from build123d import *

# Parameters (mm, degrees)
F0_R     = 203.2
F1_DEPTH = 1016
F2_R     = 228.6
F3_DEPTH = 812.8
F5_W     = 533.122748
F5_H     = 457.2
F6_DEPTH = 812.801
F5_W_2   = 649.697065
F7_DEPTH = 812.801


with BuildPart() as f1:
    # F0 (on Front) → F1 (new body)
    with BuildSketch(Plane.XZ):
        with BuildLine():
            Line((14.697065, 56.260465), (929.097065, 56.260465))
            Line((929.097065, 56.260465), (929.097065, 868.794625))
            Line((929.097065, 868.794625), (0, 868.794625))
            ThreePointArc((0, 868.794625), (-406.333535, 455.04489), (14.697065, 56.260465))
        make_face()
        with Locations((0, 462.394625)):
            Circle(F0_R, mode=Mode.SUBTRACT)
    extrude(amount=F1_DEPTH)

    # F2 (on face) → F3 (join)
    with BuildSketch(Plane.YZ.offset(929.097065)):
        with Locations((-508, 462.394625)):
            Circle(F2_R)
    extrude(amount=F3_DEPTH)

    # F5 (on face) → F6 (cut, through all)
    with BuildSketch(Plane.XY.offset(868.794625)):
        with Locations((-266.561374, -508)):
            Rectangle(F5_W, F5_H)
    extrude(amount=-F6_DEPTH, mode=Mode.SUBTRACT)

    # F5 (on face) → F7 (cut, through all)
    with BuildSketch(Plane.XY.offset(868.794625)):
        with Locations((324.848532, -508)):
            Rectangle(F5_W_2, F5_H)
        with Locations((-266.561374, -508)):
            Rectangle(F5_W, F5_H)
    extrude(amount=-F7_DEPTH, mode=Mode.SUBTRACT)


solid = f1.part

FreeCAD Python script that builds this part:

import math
import FreeCAD as App
import Part
import Sketcher
Q = App.Units.Quantity


def add_polygon(sketch, points):
    """Adds a closed chain of lines whose ends are joined by coincident constraints."""
    first, n = sketch.GeometryCount, len(points)
    for a, b in zip(points, points[1:] + points[:1]):
        sketch.addGeometry(Part.LineSegment(App.Vector(*a, 0), App.Vector(*b, 0)), False)
    for i in range(n):
        sketch.addConstraint(Sketcher.Constraint("Coincident", first + i, 2, first + (i + 1) % n, 1))

doc = App.newDocument("Part")
body = doc.addObject("PartDesign::Body", "Body")

sketch1 = doc.addObject("Sketcher::SketchObject", "Sketch")
body.addObject(sketch1)
sketch1.AttachmentSupport = (doc.XZ_Plane, [""])
sketch1.MapMode = "FlatFace"
sketch1.addGeometry([
    Part.LineSegment(App.Vector(14.697065, 56.260465, 0), App.Vector(929.097065, 56.260465, 0)),
    Part.LineSegment(App.Vector(929.097065, 56.260465, 0), App.Vector(929.097065, 868.794625, 0)),
    Part.LineSegment(App.Vector(929.097065, 868.794625, 0), App.Vector(0, 868.794625, 0)),
    Part.ArcOfCircle(Part.Circle(App.Vector(-0.000001, 462.394625, 0), App.Vector(0, 0, 1), 406.4), math.radians(90), math.radians(272.072499)),
    Part.Circle(App.Vector(0, 462.394625, 0), App.Vector(0, 0, 1), 203.2),
], False)
sketch1.addConstraint([
    Sketcher.Constraint("Coincident", 0, 2, 1, 1),
    Sketcher.Constraint("Coincident", 1, 2, 2, 1),
    Sketcher.Constraint("Tangent", 2, 2, 3, 1),
    Sketcher.Constraint("Coincident", 3, 2, 0, 1),
    Sketcher.Constraint("Horizontal", 0),
    Sketcher.Constraint("Vertical", 1),
    Sketcher.Constraint("Horizontal", 2),
    Sketcher.Constraint("Coincident", 4, 3, 3, 3),
    Sketcher.Constraint("PointOnObject", 3, 3, -2),
    Sketcher.Constraint("Diameter", 4, Q("16 in")),
    Sketcher.Constraint("Radius", 3, Q("16 in")),
    Sketcher.Constraint("DistanceX", 0, 1, 0, 2, Q("36 in")),
    Sketcher.Constraint("DistanceY", 1, 1, 1, 2, 812.53416),
    Sketcher.Constraint("DistanceY", -1, 1, 3, 3, 462.394625),
])
pad1 = doc.addObject("PartDesign::Pad", "Pad")
body.addObject(pad1)
pad1.Profile = sketch1
pad1.Length = Q("40 in")

sketch2 = doc.addObject("Sketcher::SketchObject", "Sketch001")
body.addObject(sketch2)
sketch2.AttachmentSupport = (doc.YZ_Plane, [""])
sketch2.MapMode = "FlatFace"
sketch2.AttachmentOffset = App.Placement(App.Vector(0, 0, 929.097065), App.Rotation())
sketch2.addGeometry(Part.Circle(App.Vector(-508, 462.394625, 0), App.Vector(0, 0, 1), 228.6), False)
sketch2.addConstraint([
    Sketcher.Constraint("Diameter", 0, Q("18 in")),
    Sketcher.Constraint("DistanceX", 0, 3, -1, 1, Q("20 in")),
    Sketcher.Constraint("DistanceY", -1, 1, 0, 3, 462.394625),
])
pad2 = doc.addObject("PartDesign::Pad", "Pad001")
body.addObject(pad2)
pad2.Profile = sketch2
pad2.Length = Q("32 in")

sketch3 = doc.addObject("Sketcher::SketchObject", "Sketch002")
body.addObject(sketch3)
sketch3.AttachmentSupport = (doc.XY_Plane, [""])
sketch3.MapMode = "FlatFace"
sketch3.AttachmentOffset = App.Placement(App.Vector(0, 0, 868.794625), App.Rotation())
add_polygon(sketch3, [(-533.122748, -279.4), (-533.122748, -736.6), (0, -736.6), (0, -279.4)])
sketch3.addConstraint([
    Sketcher.Constraint("Vertical", 0),
    Sketcher.Constraint("Horizontal", 1),
    Sketcher.Constraint("Vertical", 2),
    Sketcher.Constraint("Horizontal", 3),
    Sketcher.Constraint("PointOnObject", 1, 2, -2),
    Sketcher.Constraint("DistanceY", 0, 2, 0, 1, Q("18 in")),
    Sketcher.Constraint("DistanceY", 0, 2, -1, 1, Q("29 in")),
    Sketcher.Constraint("DistanceX", 1, 1, 1, 2, 533.122748),
])
pocket1 = doc.addObject("PartDesign::Pocket", "Pocket")
body.addObject(pocket1)
pocket1.Profile = sketch3
pocket1.Type = "ThroughAll"

sketch4 = doc.addObject("Sketcher::SketchObject", "Sketch003")
body.addObject(sketch4)
sketch4.AttachmentSupport = (doc.XY_Plane, [""])
sketch4.MapMode = "FlatFace"
sketch4.AttachmentOffset = App.Placement(App.Vector(0, 0, 868.794625), App.Rotation())
add_polygon(sketch4, [(-533.122748, -279.4), (-533.122748, -736.6), (649.697065, -736.6), (649.697065, -279.4)])
sketch4.addConstraint([
    Sketcher.Constraint("Vertical", 0),
    Sketcher.Constraint("Horizontal", 1),
    Sketcher.Constraint("Vertical", 2),
    Sketcher.Constraint("Horizontal", 3),
    Sketcher.Constraint("DistanceY", 0, 2, 0, 1, Q("18 in")),
    Sketcher.Constraint("DistanceY", 0, 2, -1, 1, Q("29 in")),
    Sketcher.Constraint("DistanceX", 1, 1, 1, 2, 1182.819812),
    Sketcher.Constraint("DistanceX", 0, 2, -1, 1, 533.122748),
])
pocket2 = doc.addObject("PartDesign::Pocket", "Pocket001")
body.addObject(pocket2)
pocket2.Profile = sketch4
pocket2.Type = "ThroughAll"

doc.recompute()
